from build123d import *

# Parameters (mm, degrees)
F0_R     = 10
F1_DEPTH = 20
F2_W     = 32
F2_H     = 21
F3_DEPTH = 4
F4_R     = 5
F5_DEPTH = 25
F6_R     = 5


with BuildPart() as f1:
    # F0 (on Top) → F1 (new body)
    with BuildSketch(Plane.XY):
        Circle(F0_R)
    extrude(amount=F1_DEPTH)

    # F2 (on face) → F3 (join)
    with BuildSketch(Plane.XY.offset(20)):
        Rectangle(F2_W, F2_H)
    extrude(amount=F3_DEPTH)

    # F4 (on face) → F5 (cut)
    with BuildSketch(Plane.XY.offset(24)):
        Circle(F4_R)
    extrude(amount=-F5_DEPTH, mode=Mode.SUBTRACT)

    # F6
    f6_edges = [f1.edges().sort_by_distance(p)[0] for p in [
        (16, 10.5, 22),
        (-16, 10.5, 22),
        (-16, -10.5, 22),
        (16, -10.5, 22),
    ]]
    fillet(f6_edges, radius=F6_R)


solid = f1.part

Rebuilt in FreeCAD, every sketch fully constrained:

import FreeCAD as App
import Part
import Sketcher

V = App.Vector
Q = App.Units.Quantity


def edges_at(feature, points):
    """Names of the edges that pass closest to the given points."""
    edges = feature.Shape.Edges
    near = lambda p: min(range(len(edges)), key=lambda i: edges[i].distToShape(Part.Vertex(*p))[0])
    return sorted({f"Edge{near(p) + 1}" for p in points})

doc = App.newDocument("Part")
body = doc.addObject("PartDesign::Body", "Body")

sketch1 = body.newObject("Sketcher::SketchObject", "Sketch")
sketch1.AttachmentSupport = (doc.getObject("XY_Plane"), [""])
sketch1.MapMode = "FlatFace"
sketch1.addGeometry(Part.Circle(V(0, 0, 0), V(0, 0, 1), 10), False)
sketch1.addConstraint([
    Sketcher.Constraint("Coincident", 0, 3, -1, 1),
    Sketcher.Constraint("Diameter", 0, Q("20 mm")),
])
pad1 = body.newObject("PartDesign::Pad", "Pad")
pad1.Profile = sketch1
pad1.Length = 20

sketch2 = body.newObject("Sketcher::SketchObject", "Sketch001")
sketch2.AttachmentSupport = (doc.getObject("XY_Plane"), [""])
sketch2.MapMode = "FlatFace"
sketch2.AttachmentOffset = App.Placement(V(0, 0, 20), App.Rotation())
sketch2.addGeometry([
    Part.LineSegment(V(-16, 10.5, 0), V(-16, -10.5, 0)),
    Part.LineSegment(V(-16, -10.5, 0), V(16, -10.5, 0)),
    Part.LineSegment(V(16, -10.5, 0), V(16, 10.5, 0)),
    Part.LineSegment(V(16, 10.5, 0), V(-16, 10.5, 0)),
], False)
sketch2.addConstraint([
    Sketcher.Constraint("Coincident", 0, 2, 1, 1),
    Sketcher.Constraint("Coincident", 1, 2, 2, 1),
    Sketcher.Constraint("Coincident", 2, 2, 3, 1),
    Sketcher.Constraint("Coincident", 3, 2, 0, 1),
    Sketcher.Constraint("Vertical", 0),
    Sketcher.Constraint("Horizontal", 1),
    Sketcher.Constraint("Vertical", 2),
    Sketcher.Constraint("Horizontal", 3),
    Sketcher.Constraint("Symmetric", 0, 2, 2, 2, -1, 1),
    Sketcher.Constraint("DistanceX", 1, 1, 1, 2, Q("32 mm")),
    Sketcher.Constraint("DistanceY", 0, 2, 0, 1, Q("21 mm")),
])
pad2 = body.newObject("PartDesign::Pad", "Pad001")
pad2.Profile = sketch2
pad2.Length = 4

sketch3 = body.newObject("Sketcher::SketchObject", "Sketch002")
sketch3.AttachmentSupport = (doc.getObject("XY_Plane"), [""])
sketch3.MapMode = "FlatFace"
sketch3.AttachmentOffset = App.Placement(V(0, 0, 24), App.Rotation())
sketch3.addGeometry(Part.Circle(V(0, 0, 0), V(0, 0, 1), 5), False)
sketch3.addConstraint([
    Sketcher.Constraint("Coincident", 0, 3, -1, 1),
    Sketcher.Constraint("Diameter", 0, Q("10 mm")),
])
pocket1 = body.newObject("PartDesign::Pocket", "Pocket")
pocket1.Profile = sketch3
pocket1.Length = 25
doc.recompute()

fillet = body.newObject("PartDesign::Fillet", "Fillet")
fillet.Base = (pocket1, edges_at(pocket1, [
    (16, 10.5, 22),
    (-16, 10.5, 22),
    (-16, -10.5, 22),
    (16, -10.5, 22),
]))
fillet.Radius = 5

doc.recompute()
